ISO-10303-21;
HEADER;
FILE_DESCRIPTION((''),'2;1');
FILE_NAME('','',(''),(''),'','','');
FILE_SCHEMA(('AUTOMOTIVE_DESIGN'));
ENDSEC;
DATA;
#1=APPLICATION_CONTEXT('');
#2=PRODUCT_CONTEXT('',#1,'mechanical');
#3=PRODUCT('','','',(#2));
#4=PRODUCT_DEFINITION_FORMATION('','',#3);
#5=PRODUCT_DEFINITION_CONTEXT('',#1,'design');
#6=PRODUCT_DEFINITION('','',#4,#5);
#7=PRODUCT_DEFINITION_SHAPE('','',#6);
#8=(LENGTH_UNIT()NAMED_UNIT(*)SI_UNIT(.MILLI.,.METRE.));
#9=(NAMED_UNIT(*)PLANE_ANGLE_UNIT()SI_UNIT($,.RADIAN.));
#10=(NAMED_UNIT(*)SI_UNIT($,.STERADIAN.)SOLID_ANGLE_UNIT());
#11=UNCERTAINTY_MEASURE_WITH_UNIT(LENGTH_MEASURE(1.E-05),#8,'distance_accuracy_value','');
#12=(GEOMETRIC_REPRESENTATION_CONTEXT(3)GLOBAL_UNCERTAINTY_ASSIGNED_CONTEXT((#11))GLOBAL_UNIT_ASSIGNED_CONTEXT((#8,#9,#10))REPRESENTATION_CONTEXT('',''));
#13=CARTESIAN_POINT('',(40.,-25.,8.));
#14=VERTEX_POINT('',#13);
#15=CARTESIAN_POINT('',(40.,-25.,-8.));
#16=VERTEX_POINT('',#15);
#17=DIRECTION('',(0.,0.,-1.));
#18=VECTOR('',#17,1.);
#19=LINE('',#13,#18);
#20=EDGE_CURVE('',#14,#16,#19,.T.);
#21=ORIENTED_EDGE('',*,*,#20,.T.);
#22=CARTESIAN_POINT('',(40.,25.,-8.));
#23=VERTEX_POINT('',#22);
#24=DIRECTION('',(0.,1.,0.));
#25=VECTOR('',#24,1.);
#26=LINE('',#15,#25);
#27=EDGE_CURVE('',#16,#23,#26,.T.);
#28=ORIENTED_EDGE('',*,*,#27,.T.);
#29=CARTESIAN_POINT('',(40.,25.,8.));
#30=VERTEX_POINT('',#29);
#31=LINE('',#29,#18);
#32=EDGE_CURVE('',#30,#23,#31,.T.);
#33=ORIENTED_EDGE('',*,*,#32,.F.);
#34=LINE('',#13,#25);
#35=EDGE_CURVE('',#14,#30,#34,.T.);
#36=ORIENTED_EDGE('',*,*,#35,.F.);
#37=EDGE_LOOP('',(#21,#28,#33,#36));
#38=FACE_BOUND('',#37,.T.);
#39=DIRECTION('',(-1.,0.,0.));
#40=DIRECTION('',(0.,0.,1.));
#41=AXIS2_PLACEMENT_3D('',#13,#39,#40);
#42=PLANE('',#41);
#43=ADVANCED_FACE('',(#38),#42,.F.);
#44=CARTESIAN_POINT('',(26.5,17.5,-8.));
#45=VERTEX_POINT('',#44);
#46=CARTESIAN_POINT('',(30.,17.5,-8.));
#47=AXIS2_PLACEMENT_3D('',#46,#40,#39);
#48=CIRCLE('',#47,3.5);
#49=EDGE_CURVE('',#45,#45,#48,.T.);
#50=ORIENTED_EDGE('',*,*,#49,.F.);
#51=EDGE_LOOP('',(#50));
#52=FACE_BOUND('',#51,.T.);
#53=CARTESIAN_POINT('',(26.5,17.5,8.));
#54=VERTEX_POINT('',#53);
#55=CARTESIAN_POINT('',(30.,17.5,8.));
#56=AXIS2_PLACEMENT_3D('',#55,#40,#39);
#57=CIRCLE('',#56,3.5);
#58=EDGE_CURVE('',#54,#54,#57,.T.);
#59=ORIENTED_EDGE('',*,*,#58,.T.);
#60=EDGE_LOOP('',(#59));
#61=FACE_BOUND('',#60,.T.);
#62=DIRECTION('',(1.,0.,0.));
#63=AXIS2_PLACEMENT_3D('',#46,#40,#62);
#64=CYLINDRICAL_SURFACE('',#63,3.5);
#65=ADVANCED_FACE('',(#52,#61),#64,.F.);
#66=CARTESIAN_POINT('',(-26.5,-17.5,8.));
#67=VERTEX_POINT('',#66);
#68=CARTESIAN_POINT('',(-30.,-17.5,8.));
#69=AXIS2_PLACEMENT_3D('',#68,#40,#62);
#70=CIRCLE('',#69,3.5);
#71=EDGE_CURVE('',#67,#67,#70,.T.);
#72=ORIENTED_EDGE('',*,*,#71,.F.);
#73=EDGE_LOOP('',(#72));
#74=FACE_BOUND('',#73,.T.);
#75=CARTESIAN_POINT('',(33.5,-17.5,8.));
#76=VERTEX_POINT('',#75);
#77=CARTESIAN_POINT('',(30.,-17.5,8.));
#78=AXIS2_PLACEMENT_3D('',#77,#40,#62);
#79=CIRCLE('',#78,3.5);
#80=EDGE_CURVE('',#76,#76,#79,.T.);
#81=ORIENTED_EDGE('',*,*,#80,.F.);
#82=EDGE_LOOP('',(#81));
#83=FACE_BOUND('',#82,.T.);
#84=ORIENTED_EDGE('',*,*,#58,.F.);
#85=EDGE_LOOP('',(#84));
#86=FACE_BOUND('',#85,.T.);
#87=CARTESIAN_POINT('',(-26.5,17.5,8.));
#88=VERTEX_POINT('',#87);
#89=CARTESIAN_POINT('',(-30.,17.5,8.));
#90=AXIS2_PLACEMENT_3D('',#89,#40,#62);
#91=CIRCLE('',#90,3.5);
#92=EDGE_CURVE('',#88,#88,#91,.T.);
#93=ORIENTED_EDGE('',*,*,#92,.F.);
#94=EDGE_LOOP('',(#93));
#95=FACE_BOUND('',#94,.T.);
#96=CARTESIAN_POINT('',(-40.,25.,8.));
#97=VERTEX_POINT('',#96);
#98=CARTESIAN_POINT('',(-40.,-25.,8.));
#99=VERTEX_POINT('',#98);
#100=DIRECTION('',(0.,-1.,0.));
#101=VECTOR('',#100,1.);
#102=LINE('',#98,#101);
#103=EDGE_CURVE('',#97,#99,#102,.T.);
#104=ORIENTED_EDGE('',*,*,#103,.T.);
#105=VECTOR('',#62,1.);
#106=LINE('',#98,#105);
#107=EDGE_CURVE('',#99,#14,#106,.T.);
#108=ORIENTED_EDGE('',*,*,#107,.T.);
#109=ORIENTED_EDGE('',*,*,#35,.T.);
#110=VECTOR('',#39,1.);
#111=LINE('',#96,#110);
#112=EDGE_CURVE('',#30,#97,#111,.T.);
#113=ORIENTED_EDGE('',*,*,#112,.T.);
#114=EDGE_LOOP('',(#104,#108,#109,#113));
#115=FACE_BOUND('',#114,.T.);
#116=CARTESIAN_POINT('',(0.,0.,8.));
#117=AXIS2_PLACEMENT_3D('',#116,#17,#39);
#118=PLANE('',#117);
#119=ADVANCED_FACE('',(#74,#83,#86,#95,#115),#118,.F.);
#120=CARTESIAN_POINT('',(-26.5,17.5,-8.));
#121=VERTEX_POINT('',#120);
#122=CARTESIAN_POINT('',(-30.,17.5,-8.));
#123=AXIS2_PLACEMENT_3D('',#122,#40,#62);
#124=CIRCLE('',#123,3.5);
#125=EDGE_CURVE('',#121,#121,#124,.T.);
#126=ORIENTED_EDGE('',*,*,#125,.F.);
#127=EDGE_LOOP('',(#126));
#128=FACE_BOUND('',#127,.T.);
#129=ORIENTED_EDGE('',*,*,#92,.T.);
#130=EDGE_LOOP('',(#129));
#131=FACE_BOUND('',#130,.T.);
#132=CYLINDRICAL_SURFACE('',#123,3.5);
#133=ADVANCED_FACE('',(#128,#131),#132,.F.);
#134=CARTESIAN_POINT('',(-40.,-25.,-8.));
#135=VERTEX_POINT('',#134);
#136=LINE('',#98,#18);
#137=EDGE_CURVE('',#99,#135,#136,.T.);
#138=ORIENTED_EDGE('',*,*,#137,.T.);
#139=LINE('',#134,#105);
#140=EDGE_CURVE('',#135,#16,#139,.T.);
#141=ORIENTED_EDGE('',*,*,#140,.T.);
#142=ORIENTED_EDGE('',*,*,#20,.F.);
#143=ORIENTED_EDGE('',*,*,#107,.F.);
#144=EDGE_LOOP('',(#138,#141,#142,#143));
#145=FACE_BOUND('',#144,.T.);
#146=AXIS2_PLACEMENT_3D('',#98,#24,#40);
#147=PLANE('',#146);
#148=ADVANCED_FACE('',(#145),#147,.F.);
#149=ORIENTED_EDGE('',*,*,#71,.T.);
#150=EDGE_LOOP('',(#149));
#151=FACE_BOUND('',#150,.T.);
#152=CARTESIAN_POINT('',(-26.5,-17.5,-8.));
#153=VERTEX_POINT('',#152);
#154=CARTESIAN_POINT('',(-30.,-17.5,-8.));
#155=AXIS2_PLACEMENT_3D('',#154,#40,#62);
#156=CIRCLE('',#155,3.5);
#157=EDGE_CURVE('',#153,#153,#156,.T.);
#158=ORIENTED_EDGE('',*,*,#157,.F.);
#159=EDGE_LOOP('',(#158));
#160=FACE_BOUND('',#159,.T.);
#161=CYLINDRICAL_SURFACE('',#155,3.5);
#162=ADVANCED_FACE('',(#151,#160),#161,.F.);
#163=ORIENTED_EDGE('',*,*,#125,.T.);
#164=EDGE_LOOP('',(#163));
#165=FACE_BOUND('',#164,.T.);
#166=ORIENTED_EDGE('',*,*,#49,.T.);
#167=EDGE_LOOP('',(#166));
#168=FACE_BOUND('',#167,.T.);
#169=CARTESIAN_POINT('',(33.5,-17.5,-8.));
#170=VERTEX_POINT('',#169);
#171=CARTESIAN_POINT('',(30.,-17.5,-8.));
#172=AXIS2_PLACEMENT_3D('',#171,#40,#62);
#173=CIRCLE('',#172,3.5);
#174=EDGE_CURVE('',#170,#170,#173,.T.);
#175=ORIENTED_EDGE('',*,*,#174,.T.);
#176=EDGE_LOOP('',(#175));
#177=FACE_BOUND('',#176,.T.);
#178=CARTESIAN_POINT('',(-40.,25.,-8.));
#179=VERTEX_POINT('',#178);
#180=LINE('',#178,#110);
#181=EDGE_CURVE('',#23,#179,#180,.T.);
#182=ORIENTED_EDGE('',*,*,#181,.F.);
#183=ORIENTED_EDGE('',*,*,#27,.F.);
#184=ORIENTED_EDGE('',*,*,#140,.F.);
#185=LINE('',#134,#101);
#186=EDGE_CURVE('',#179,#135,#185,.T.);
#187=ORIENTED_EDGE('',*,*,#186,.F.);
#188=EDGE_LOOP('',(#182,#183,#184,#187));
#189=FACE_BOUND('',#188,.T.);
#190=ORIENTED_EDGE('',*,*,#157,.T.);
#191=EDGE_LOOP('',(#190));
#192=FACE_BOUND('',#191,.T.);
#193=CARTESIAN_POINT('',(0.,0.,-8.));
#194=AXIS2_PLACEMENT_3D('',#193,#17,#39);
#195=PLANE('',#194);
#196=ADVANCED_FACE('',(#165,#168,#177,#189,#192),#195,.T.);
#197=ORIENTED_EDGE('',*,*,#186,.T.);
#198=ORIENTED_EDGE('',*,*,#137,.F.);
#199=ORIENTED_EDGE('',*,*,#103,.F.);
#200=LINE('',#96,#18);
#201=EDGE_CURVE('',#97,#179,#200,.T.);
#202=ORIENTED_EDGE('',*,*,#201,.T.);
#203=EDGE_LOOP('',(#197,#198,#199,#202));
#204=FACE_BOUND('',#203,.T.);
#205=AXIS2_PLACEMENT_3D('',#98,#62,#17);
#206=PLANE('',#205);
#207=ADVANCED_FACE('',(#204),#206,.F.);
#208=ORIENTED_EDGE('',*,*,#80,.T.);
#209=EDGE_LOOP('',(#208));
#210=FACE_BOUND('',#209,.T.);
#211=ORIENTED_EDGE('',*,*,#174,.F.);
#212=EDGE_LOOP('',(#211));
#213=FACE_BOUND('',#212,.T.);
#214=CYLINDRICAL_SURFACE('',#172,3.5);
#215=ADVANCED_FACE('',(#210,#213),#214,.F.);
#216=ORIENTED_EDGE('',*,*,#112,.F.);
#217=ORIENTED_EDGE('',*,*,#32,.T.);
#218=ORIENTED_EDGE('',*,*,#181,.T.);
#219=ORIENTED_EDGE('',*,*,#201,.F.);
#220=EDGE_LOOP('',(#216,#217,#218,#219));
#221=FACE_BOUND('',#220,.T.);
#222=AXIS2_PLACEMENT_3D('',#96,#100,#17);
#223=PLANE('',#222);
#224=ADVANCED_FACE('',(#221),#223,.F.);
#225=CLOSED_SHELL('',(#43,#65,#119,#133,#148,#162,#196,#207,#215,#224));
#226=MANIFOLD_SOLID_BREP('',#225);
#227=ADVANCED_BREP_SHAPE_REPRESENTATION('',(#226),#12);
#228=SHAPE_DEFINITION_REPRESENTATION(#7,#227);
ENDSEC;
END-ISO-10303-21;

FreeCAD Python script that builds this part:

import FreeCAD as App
import Part
import Sketcher

V = App.Vector
Q = App.Units.Quantity

doc = App.newDocument("Part")
params = doc.addObject("Spreadsheet::Sheet", "Params")
for row, (alias, value) in enumerate([
    ("sketch1_width", "80 mm"),
    ("sketch1_height", "50 mm"),
    ("pad1_length", "16 mm"),
    ("sketch2_diameter", "7 mm"),
], start=1):
    params.set(f"A{row}", alias)
    params.set(f"B{row}", "=" + value)
    params.setAlias(f"B{row}", alias)

body = doc.addObject("PartDesign::Body", "Body")

sketch1 = body.newObject("Sketcher::SketchObject", "Sketch")
sketch1.AttachmentSupport = (doc.getObject("XY_Plane"), [""])
sketch1.MapMode = "FlatFace"
sketch1.addGeometry(Part.LineSegment(V(-40, 25, 0), V(-40, -25, 0)), False)
sketch1.addGeometry(Part.LineSegment(V(-40, -25, 0), V(40, -25, 0)), False)
sketch1.addGeometry(Part.LineSegment(V(40, -25, 0), V(40, 25, 0)), False)
sketch1.addGeometry(Part.LineSegment(V(40, 25, 0), V(-40, 25, 0)), False)
sketch1.addConstraint(Sketcher.Constraint("Coincident", 0, 2, 1, 1))
sketch1.addConstraint(Sketcher.Constraint("Coincident", 1, 2, 2, 1))
sketch1.addConstraint(Sketcher.Constraint("Coincident", 2, 2, 3, 1))
sketch1.addConstraint(Sketcher.Constraint("Coincident", 3, 2, 0, 1))
sketch1.addConstraint(Sketcher.Constraint("Vertical", 0))
sketch1.addConstraint(Sketcher.Constraint("Horizontal", 1))
sketch1.addConstraint(Sketcher.Constraint("Vertical", 2))
sketch1.addConstraint(Sketcher.Constraint("Horizontal", 3))
sketch1.addConstraint(Sketcher.Constraint("Symmetric", 0, 2, 2, 2, -1, 1))
sketch1.addConstraint(Sketcher.Constraint("DistanceX", 1, 1, 1, 2, Q("80 mm")))
sketch1.addConstraint(Sketcher.Constraint("DistanceY", 0, 2, 0, 1, Q("50 mm")))
sketch1.setExpression("Constraints[9]", "Params.sketch1_width")
sketch1.setExpression("Constraints[10]", "Params.sketch1_height")
pad1 = body.newObject("PartDesign::Pad", "Pad")
pad1.Profile = sketch1
pad1.setExpression("Length", "Params.pad1_length")
pad1.Midplane = True

sketch2 = body.newObject("Sketcher::SketchObject", "Sketch001")
sketch2.AttachmentSupport = (doc.getObject("XY_Plane"), [""])
sketch2.MapMode = "FlatFace"
sketch2.AttachmentOffset = App.Placement(V(0, 0, 8), App.Rotation())
sketch2.addGeometry(Part.Circle(V(-30, 17.5, 0), V(0, 0, 1), 3.5), False)
sketch2.addGeometry(Part.Circle(V(30, 17.5, 0), V(0, 0, 1), 3.5), False)
sketch2.addGeometry(Part.Circle(V(-30, -17.5, 0), V(0, 0, 1), 3.5), False)
sketch2.addGeometry(Part.Circle(V(30, -17.5, 0), V(0, 0, 1), 3.5), False)
sketch2.addConstraint(Sketcher.Constraint("Equal", 0, 1))
sketch2.addConstraint(Sketcher.Constraint("Equal", 1, 2))
sketch2.addConstraint(Sketcher.Constraint("Equal", 2, 3))
sketch2.addConstraint(Sketcher.Constraint("Symmetric", 1, 3, 2, 3, -1, 1))
sketch2.addConstraint(Sketcher.Constraint("Symmetric", 0, 3, 3, 3, -1, 1))
sketch2.addConstraint(Sketcher.Constraint("Symmetric", 0, 3, 1, 3, -2))
sketch2.addConstraint(Sketcher.Constraint("Diameter", 0, Q("7 mm")))
sketch2.addConstraint(Sketcher.Constraint("DistanceX", 0, 3, -1, 1, Q("30 mm")))
sketch2.addConstraint(Sketcher.Constraint("DistanceY", 2, 3, 0, 3, Q("35 mm")))
sketch2.setExpression("Constraints[6]", "Params.sketch2_diameter")
pocket1 = body.newObject("PartDesign::Pocket", "Pocket")
pocket1.Profile = sketch2
pocket1.Type = "ThroughAll"

doc.recompute()
